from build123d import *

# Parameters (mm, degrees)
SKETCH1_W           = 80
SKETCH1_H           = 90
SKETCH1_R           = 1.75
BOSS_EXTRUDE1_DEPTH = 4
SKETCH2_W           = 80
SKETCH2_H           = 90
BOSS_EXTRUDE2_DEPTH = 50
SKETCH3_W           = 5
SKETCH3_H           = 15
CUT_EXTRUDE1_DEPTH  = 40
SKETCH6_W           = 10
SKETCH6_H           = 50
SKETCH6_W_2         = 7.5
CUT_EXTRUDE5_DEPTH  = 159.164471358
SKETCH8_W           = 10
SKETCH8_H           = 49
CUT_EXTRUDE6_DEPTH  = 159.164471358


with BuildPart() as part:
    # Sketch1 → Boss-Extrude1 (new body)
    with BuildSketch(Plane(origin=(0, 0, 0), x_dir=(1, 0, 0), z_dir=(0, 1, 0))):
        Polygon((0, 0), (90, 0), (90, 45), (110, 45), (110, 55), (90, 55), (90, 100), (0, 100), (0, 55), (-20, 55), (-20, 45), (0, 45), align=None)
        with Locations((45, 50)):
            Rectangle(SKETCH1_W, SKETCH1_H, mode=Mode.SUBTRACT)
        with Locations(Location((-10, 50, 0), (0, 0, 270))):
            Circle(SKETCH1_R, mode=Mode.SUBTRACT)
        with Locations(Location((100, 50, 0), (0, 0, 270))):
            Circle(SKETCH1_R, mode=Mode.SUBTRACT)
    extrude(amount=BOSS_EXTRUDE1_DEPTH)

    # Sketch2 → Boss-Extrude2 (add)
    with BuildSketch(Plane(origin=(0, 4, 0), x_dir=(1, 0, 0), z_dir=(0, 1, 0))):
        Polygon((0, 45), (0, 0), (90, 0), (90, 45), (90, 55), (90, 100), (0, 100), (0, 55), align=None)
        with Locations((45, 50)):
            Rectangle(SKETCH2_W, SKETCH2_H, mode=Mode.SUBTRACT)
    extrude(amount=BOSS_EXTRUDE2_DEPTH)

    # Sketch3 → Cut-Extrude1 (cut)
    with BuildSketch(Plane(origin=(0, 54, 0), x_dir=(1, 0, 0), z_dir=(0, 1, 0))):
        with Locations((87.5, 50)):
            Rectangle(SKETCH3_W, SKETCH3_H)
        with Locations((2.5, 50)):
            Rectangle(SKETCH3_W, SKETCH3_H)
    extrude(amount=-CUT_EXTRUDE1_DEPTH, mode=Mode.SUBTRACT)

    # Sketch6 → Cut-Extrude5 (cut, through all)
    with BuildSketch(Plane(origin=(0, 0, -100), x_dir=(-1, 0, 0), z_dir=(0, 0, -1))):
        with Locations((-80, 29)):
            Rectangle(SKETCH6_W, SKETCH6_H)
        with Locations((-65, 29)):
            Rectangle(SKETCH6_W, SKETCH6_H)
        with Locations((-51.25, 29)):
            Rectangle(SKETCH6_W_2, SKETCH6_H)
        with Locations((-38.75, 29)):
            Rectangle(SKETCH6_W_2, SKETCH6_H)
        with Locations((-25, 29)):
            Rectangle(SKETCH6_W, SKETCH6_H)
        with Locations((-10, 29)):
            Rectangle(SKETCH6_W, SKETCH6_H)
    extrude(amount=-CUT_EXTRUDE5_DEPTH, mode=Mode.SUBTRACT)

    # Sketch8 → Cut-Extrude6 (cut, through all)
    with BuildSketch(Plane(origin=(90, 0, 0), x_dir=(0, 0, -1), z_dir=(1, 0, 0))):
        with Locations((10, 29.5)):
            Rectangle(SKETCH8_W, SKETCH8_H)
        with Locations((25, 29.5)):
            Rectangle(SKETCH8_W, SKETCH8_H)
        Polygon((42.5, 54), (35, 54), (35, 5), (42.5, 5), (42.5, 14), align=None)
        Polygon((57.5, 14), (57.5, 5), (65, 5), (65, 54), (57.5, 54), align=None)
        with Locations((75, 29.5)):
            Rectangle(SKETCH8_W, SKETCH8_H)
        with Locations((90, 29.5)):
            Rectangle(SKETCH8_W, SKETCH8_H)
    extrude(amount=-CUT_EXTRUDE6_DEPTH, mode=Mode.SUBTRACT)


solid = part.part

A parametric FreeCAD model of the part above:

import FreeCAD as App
import Part
import Sketcher
from FreeCAD import Vector

doc = App.newDocument("Part")
body = doc.addObject("PartDesign::Body", "Body")

# Sketch on XZ plane
sketch1 = doc.addObject("Sketcher::SketchObject", "Sketch")
body.addObject(sketch1)
sketch1.AttachmentSupport = (doc.XZ_Plane, [""])
sketch1.MapMode = "FlatFace"
sketch1.addGeometry(Part.LineSegment(Vector(0, 0, 0), Vector(90, 0, 0)), False)
sketch1.addGeometry(Part.LineSegment(Vector(90, 0, 0), Vector(90, -45, 0)), False)
sketch1.addGeometry(Part.LineSegment(Vector(90, -45, 0), Vector(110, -45, 0)), False)
sketch1.addGeometry(Part.LineSegment(Vector(110, -45, 0), Vector(110, -55, 0)), False)
sketch1.addGeometry(Part.LineSegment(Vector(110, -55, 0), Vector(90, -55, 0)), False)
sketch1.addGeometry(Part.LineSegment(Vector(90, -55, 0), Vector(90, -100, 0)), False)
sketch1.addGeometry(Part.LineSegment(Vector(90, -100, 0), Vector(0, -100, 0)), False)
sketch1.addGeometry(Part.LineSegment(Vector(0, -100, 0), Vector(0, -55, 0)), False)
sketch1.addGeometry(Part.LineSegment(Vector(0, -55, 0), Vector(-20, -55, 0)), False)
sketch1.addGeometry(Part.LineSegment(Vector(-20, -55, 0), Vector(-20, -45, 0)), False)
sketch1.addGeometry(Part.LineSegment(Vector(-20, -45, 0), Vector(0, -45, 0)), False)
sketch1.addGeometry(Part.LineSegment(Vector(0, -45, 0), Vector(0, 0, 0)), False)
sketch1.addGeometry(Part.Circle(Vector(-10, -50, 0), Vector(0, 0, 1), 1.8), False)
sketch1.addGeometry(Part.LineSegment(Vector(85, -5, 0), Vector(5, -5, 0)), False)
sketch1.addGeometry(Part.LineSegment(Vector(5, -5, 0), Vector(5, -95, 0)), False)
sketch1.addGeometry(Part.LineSegment(Vector(5, -95, 0), Vector(85, -95, 0)), False)
sketch1.addGeometry(Part.LineSegment(Vector(85, -95, 0), Vector(85, -5, 0)), False)
sketch1.addGeometry(Part.Circle(Vector(100, -50, 0), Vector(0, 0, 1), 1.8), False)
sketch1.addConstraint(Sketcher.Constraint("Coincident", 0, 2, 1, 1))
sketch1.addConstraint(Sketcher.Constraint("Coincident", 1, 2, 2, 1))
sketch1.addConstraint(Sketcher.Constraint("Coincident", 2, 2, 3, 1))
sketch1.addConstraint(Sketcher.Constraint("Coincident", 3, 2, 4, 1))
sketch1.addConstraint(Sketcher.Constraint("Coincident", 4, 2, 5, 1))
sketch1.addConstraint(Sketcher.Constraint("Coincident", 5, 2, 6, 1))
sketch1.addConstraint(Sketcher.Constraint("Coincident", 6, 2, 7, 1))
sketch1.addConstraint(Sketcher.Constraint("Coincident", 7, 2, 8, 1))
sketch1.addConstraint(Sketcher.Constraint("Coincident", 8, 2, 9, 1))
sketch1.addConstraint(Sketcher.Constraint("Coincident", 9, 2, 10, 1))
sketch1.addConstraint(Sketcher.Constraint("Coincident", 10, 2, 11, 1))
sketch1.addConstraint(Sketcher.Constraint("Coincident", 11, 2, 0, 1))
sketch1.addConstraint(Sketcher.Constraint("Coincident", 13, 2, 14, 1))
sketch1.addConstraint(Sketcher.Constraint("Coincident", 14, 2, 15, 1))
sketch1.addConstraint(Sketcher.Constraint("Coincident", 15, 2, 16, 1))
sketch1.addConstraint(Sketcher.Constraint("Coincident", 16, 2, 13, 1))
sketch1.addConstraint(Sketcher.Constraint("Horizontal", 0))
sketch1.addConstraint(Sketcher.Constraint("Vertical", 1))
sketch1.addConstraint(Sketcher.Constraint("Horizontal", 2))
sketch1.addConstraint(Sketcher.Constraint("Vertical", 3))
sketch1.addConstraint(Sketcher.Constraint("Horizontal", 4))
sketch1.addConstraint(Sketcher.Constraint("Vertical", 5))
sketch1.addConstraint(Sketcher.Constraint("Horizontal", 6))
sketch1.addConstraint(Sketcher.Constraint("Vertical", 7))
sketch1.addConstraint(Sketcher.Constraint("Horizontal", 8))
sketch1.addConstraint(Sketcher.Constraint("Vertical", 9))
sketch1.addConstraint(Sketcher.Constraint("Horizontal", 10))
sketch1.addConstraint(Sketcher.Constraint("Vertical", 11))
sketch1.addConstraint(Sketcher.Constraint("Horizontal", 13))
sketch1.addConstraint(Sketcher.Constraint("Vertical", 14))
sketch1.addConstraint(Sketcher.Constraint("Horizontal", 15))
sketch1.addConstraint(Sketcher.Constraint("Vertical", 16))
sketch1.addConstraint(Sketcher.Constraint("Coincident", 11, 2, -1, 1))
sketch1.addConstraint(Sketcher.Constraint("Equal", 12, 17))
sketch1.addConstraint(Sketcher.Constraint("PointOnObject", 6, 2, -2))
sketch1.addConstraint(Sketcher.Constraint("Horizontal", 12, 3, 17, 3))
sketch1.addConstraint(Sketcher.Constraint("Horizontal", 4, 2, 7, 2))
sketch1.addConstraint(Sketcher.Constraint("Horizontal", 2, 2, 9, 2))
sketch1.addConstraint(Sketcher.Constraint("Vertical", 1, 2, 4, 2))
sketch1.addConstraint(Sketcher.Constraint("Equal", 4, 8))
sketch1.addConstraint(Sketcher.Constraint("Equal", 1, 5))
sketch1.addConstraint(Sketcher.Constraint("Equal", 6, 14))
sketch1.addConstraint(Sketcher.Constraint("Diameter", 12, 3.5))
sketch1.addConstraint(Sketcher.Constraint("DistanceX", 0, 1, 0, 2, 90.0))
sketch1.addConstraint(Sketcher.Constraint("DistanceX", 2, 1, 2, 2, 20.0))
sketch1.addConstraint(Sketcher.Constraint("DistanceX", 13, 2, 13, 1, 80.0))
sketch1.addConstraint(Sketcher.Constraint("DistanceY", 1, 2, 1, 1, 45.0))
sketch1.addConstraint(Sketcher.Constraint("DistanceY", 3, 2, 3, 1, 10.0))
sketch1.addConstraint(Sketcher.Constraint("DistanceX", 12, 3, -1, 1, 10.0))
sketch1.addConstraint(Sketcher.Constraint("DistanceY", 12, 3, -1, 1, 50.0))
sketch1.addConstraint(Sketcher.Constraint("DistanceX", -1, 1, 17, 3, 100.0))
sketch1.addConstraint(Sketcher.Constraint("DistanceX", -1, 1, 13, 2, 5.0))
sketch1.addConstraint(Sketcher.Constraint("DistanceY", 13, 2, -1, 1, 5.0))
pad1 = doc.addObject("PartDesign::Pad", "Pad")
body.addObject(pad1)
pad1.Profile = sketch1
pad1.Length = 4
pad1.Reversed = True

# Sketch on XZ plane
sketch2 = doc.addObject("Sketcher::SketchObject", "Sketch001")
body.addObject(sketch2)
sketch2.AttachmentSupport = (doc.XZ_Plane, [""])
sketch2.MapMode = "FlatFace"
sketch2.AttachmentOffset = App.Placement(Vector(0, 0, -4), App.Rotation())
sketch2.addGeometry(Part.LineSegment(Vector(0, 0, 0), Vector(90, 0, 0)), False)
sketch2.addGeometry(Part.LineSegment(Vector(90, 0, 0), Vector(90, -100, 0)), False)
sketch2.addGeometry(Part.LineSegment(Vector(90, -100, 0), Vector(0, -100, 0)), False)
sketch2.addGeometry(Part.LineSegment(Vector(0, -100, 0), Vector(0, 0, 0)), False)
sketch2.addGeometry(Part.LineSegment(Vector(85, -5, 0), Vector(5, -5, 0)), False)
sketch2.addGeometry(Part.LineSegment(Vector(5, -5, 0), Vector(5, -95, 0)), False)
sketch2.addGeometry(Part.LineSegment(Vector(5, -95, 0), Vector(85, -95, 0)), False)
sketch2.addGeometry(Part.LineSegment(Vector(85, -95, 0), Vector(85, -5, 0)), False)
sketch2.addConstraint(Sketcher.Constraint("Coincident", 0, 2, 1, 1))
sketch2.addConstraint(Sketcher.Constraint("Coincident", 1, 2, 2, 1))
sketch2.addConstraint(Sketcher.Constraint("Coincident", 2, 2, 3, 1))
sketch2.addConstraint(Sketcher.Constraint("Coincident", 3, 2, 0, 1))
sketch2.addConstraint(Sketcher.Constraint("Coincident", 4, 2, 5, 1))
sketch2.addConstraint(Sketcher.Constraint("Coincident", 5, 2, 6, 1))
sketch2.addConstraint(Sketcher.Constraint("Coincident", 6, 2, 7, 1))
sketch2.addConstraint(Sketcher.Constraint("Coincident", 7, 2, 4, 1))
sketch2.addConstraint(Sketcher.Constraint("Horizontal", 0))
sketch2.addConstraint(Sketcher.Constraint("Vertical", 1))
sketch2.addConstraint(Sketcher.Constraint("Horizontal", 2))
sketch2.addConstraint(Sketcher.Constraint("Vertical", 3))
sketch2.addConstraint(Sketcher.Constraint("Horizontal", 4))
sketch2.addConstraint(Sketcher.Constraint("Vertical", 5))
sketch2.addConstraint(Sketcher.Constraint("Horizontal", 6))
sketch2.addConstraint(Sketcher.Constraint("Vertical", 7))
sketch2.addConstraint(Sketcher.Constraint("Coincident", 3, 2, -1, 1))
sketch2.addConstraint(Sketcher.Constraint("Equal", 2, 5))
sketch2.addConstraint(Sketcher.Constraint("DistanceX", 0, 1, 0, 2, 90.0))
sketch2.addConstraint(Sketcher.Constraint("DistanceX", 4, 2, 4, 1, 80.0))
sketch2.addConstraint(Sketcher.Constraint("DistanceY", 1, 2, 1, 1, 100.0))
sketch2.addConstraint(Sketcher.Constraint("DistanceX", -1, 1, 4, 2, 5.0))
sketch2.addConstraint(Sketcher.Constraint("DistanceY", 4, 2, -1, 1, 5.0))
pad2 = doc.addObject("PartDesign::Pad", "Pad001")
body.addObject(pad2)
pad2.Profile = sketch2
pad2.Length = 50
pad2.Reversed = True

# Sketch on XZ plane
sketch3 = doc.addObject("Sketcher::SketchObject", "Sketch002")
body.addObject(sketch3)
sketch3.AttachmentSupport = (doc.XZ_Plane, [""])
sketch3.MapMode = "FlatFace"
sketch3.AttachmentOffset = App.Placement(Vector(0, 0, -54), App.Rotation())
sketch3.addGeometry(Part.LineSegment(Vector(85, -58, 0), Vector(85, -42, 0)), False)
sketch3.addGeometry(Part.LineSegment(Vector(85, -42, 0), Vector(90, -42, 0)), False)
sketch3.addGeometry(Part.LineSegment(Vector(90, -42, 0), Vector(90, -58, 0)), False)
sketch3.addGeometry(Part.LineSegment(Vector(90, -58, 0), Vector(85, -58, 0)), False)
sketch3.addGeometry(Part.LineSegment(Vector(0, -58, 0), Vector(0, -42, 0)), False)
sketch3.addGeometry(Part.LineSegment(Vector(0, -42, 0), Vector(5, -42, 0)), False)
sketch3.addGeometry(Part.LineSegment(Vector(5, -42, 0), Vector(5, -58, 0)), False)
sketch3.addGeometry(Part.LineSegment(Vector(5, -58, 0), Vector(0, -58, 0)), False)
sketch3.addConstraint(Sketcher.Constraint("Coincident", 0, 2, 1, 1))
sketch3.addConstraint(Sketcher.Constraint("Coincident", 1, 2, 2, 1))
sketch3.addConstraint(Sketcher.Constraint("Coincident", 2, 2, 3, 1))
sketch3.addConstraint(Sketcher.Constraint("Coincident", 3, 2, 0, 1))
sketch3.addConstraint(Sketcher.Constraint("Coincident", 4, 2, 5, 1))
sketch3.addConstraint(Sketcher.Constraint("Coincident", 5, 2, 6, 1))
sketch3.addConstraint(Sketcher.Constraint("Coincident", 6, 2, 7, 1))
sketch3.addConstraint(Sketcher.Constraint("Coincident", 7, 2, 4, 1))
sketch3.addConstraint(Sketcher.Constraint("Vertical", 0))
sketch3.addConstraint(Sketcher.Constraint("Horizontal", 1))
sketch3.addConstraint(Sketcher.Constraint("Vertical", 2))
sketch3.addConstraint(Sketcher.Constraint("Horizontal", 3))
sketch3.addConstraint(Sketcher.Constraint("Vertical", 4))
sketch3.addConstraint(Sketcher.Constraint("Horizontal", 5))
sketch3.addConstraint(Sketcher.Constraint("Vertical", 6))
sketch3.addConstraint(Sketcher.Constraint("Horizontal", 7))
sketch3.addConstraint(Sketcher.Constraint("PointOnObject", 4, 2, -2))
sketch3.addConstraint(Sketcher.Constraint("Horizontal", 1, 2, 4, 2))
sketch3.addConstraint(Sketcher.Constraint("Horizontal", 3, 2, 6, 2))
sketch3.addConstraint(Sketcher.Constraint("Equal", 3, 5))
sketch3.addConstraint(Sketcher.Constraint("DistanceX", 1, 1, 1, 2, 5.0))
sketch3.addConstraint(Sketcher.Constraint("DistanceY", 0, 1, 0, 2, 15.0))
sketch3.addConstraint(Sketcher.Constraint("DistanceX", -1, 1, 0, 2, 85.0))
sketch3.addConstraint(Sketcher.Constraint("DistanceY", 0, 2, -1, 1, 42.5))
pocket1 = doc.addObject("PartDesign::Pocket", "Pocket")
body.addObject(pocket1)
pocket1.Profile = sketch3
pocket1.Length = 40
pocket1.Reversed = True

# Sketch on XY plane
sketch4 = doc.addObject("Sketcher::SketchObject", "Sketch003")
body.addObject(sketch4)
sketch4.AttachmentSupport = (doc.XY_Plane, [""])
sketch4.MapMode = "FlatFace"
sketch4.AttachmentOffset = App.Placement(Vector(0, 0, -100), App.Rotation())
sketch4.addGeometry(Part.LineSegment(Vector(85, 54, 0), Vector(85, 4, 0)), False)
sketch4.addGeometry(Part.LineSegment(Vector(85, 4, 0), Vector(75, 4, 0)), False)
sketch4.addGeometry(Part.LineSegment(Vector(75, 4, 0), Vector(75, 54, 0)), False)
sketch4.addGeometry(Part.LineSegment(Vector(75, 54, 0), Vector(85, 54, 0)), False)
sketch4.addGeometry(Part.LineSegment(Vector(70, 54, 0), Vector(70, 4, 0)), False)
sketch4.addGeometry(Part.LineSegment(Vector(70, 4, 0), Vector(60, 4, 0)), False)
sketch4.addGeometry(Part.LineSegment(Vector(60, 4, 0), Vector(60, 54, 0)), False)
sketch4.addGeometry(Part.LineSegment(Vector(60, 54, 0), Vector(70, 54, 0)), False)
sketch4.addGeometry(Part.LineSegment(Vector(55, 54, 0), Vector(55, 4, 0)), False)
sketch4.addGeometry(Part.LineSegment(Vector(55, 4, 0), Vector(48, 4, 0)), False)
sketch4.addGeometry(Part.LineSegment(Vector(48, 4, 0), Vector(48, 54, 0)), False)
sketch4.addGeometry(Part.LineSegment(Vector(48, 54, 0), Vector(55, 54, 0)), False)
sketch4.addGeometry(Part.LineSegment(Vector(42, 54, 0), Vector(42, 4, 0)), False)
sketch4.addGeometry(Part.LineSegment(Vector(42, 4, 0), Vector(35, 4, 0)), False)
sketch4.addGeometry(Part.LineSegment(Vector(35, 4, 0), Vector(35, 54, 0)), False)
sketch4.addGeometry(Part.LineSegment(Vector(35, 54, 0), Vector(42, 54, 0)), False)
sketch4.addGeometry(Part.LineSegment(Vector(30, 54, 0), Vector(30, 4, 0)), False)
sketch4.addGeometry(Part.LineSegment(Vector(30, 4, 0), Vector(20, 4, 0)), False)
sketch4.addGeometry(Part.LineSegment(Vector(20, 4, 0), Vector(20, 54, 0)), False)
sketch4.addGeometry(Part.LineSegment(Vector(20, 54, 0), Vector(30, 54, 0)), False)
sketch4.addGeometry(Part.LineSegment(Vector(15, 54, 0), Vector(15, 4, 0)), False)
sketch4.addGeometry(Part.LineSegment(Vector(15, 4, 0), Vector(5, 4, 0)), False)
sketch4.addGeometry(Part.LineSegment(Vector(5, 4, 0), Vector(5, 54, 0)), False)
sketch4.addGeometry(Part.LineSegment(Vector(5, 54, 0), Vector(15, 54, 0)), False)
sketch4.addConstraint(Sketcher.Constraint("Coincident", 0, 2, 1, 1))
sketch4.addConstraint(Sketcher.Constraint("Coincident", 1, 2, 2, 1))
sketch4.addConstraint(Sketcher.Constraint("Coincident", 2, 2, 3, 1))
sketch4.addConstraint(Sketcher.Constraint("Coincident", 3, 2, 0, 1))
sketch4.addConstraint(Sketcher.Constraint("Coincident", 4, 2, 5, 1))
sketch4.addConstraint(Sketcher.Constraint("Coincident", 5, 2, 6, 1))
sketch4.addConstraint(Sketcher.Constraint("Coincident", 6, 2, 7, 1))
sketch4.addConstraint(Sketcher.Constraint("Coincident", 7, 2, 4, 1))
sketch4.addConstraint(Sketcher.Constraint("Coincident", 8, 2, 9, 1))
sketch4.addConstraint(Sketcher.Constraint("Coincident", 9, 2, 10, 1))
sketch4.addConstraint(Sketcher.Constraint("Coincident", 10, 2, 11, 1))
sketch4.addConstraint(Sketcher.Constraint("Coincident", 11, 2, 8, 1))
sketch4.addConstraint(Sketcher.Constraint("Coincident", 12, 2, 13, 1))
sketch4.addConstraint(Sketcher.Constraint("Coincident", 13, 2, 14, 1))
sketch4.addConstraint(Sketcher.Constraint("Coincident", 14, 2, 15, 1))
sketch4.addConstraint(Sketcher.Constraint("Coincident", 15, 2, 12, 1))
sketch4.addConstraint(Sketcher.Constraint("Coincident", 16, 2, 17, 1))
sketch4.addConstraint(Sketcher.Constraint("Coincident", 17, 2, 18, 1))
sketch4.addConstraint(Sketcher.Constraint("Coincident", 18, 2, 19, 1))
sketch4.addConstraint(Sketcher.Constraint("Coincident", 19, 2, 16, 1))
sketch4.addConstraint(Sketcher.Constraint("Coincident", 20, 2, 21, 1))
sketch4.addConstraint(Sketcher.Constraint("Coincident", 21, 2, 22, 1))
sketch4.addConstraint(Sketcher.Constraint("Coincident", 22, 2, 23, 1))
sketch4.addConstraint(Sketcher.Constraint("Coincident", 23, 2, 20, 1))
sketch4.addConstraint(Sketcher.Constraint("Vertical", 0))
sketch4.addConstraint(Sketcher.Constraint("Horizontal", 1))
sketch4.addConstraint(Sketcher.Constraint("Vertical", 2))
sketch4.addConstraint(Sketcher.Constraint("Horizontal", 3))
sketch4.addConstraint(Sketcher.Constraint("Vertical", 4))
sketch4.addConstraint(Sketcher.Constraint("Horizontal", 5))
sketch4.addConstraint(Sketcher.Constraint("Vertical", 6))
sketch4.addConstraint(Sketcher.Constraint("Horizontal", 7))
sketch4.addConstraint(Sketcher.Constraint("Vertical", 8))
sketch4.addConstraint(Sketcher.Constraint("Horizontal", 9))
sketch4.addConstraint(Sketcher.Constraint("Vertical", 10))
sketch4.addConstraint(Sketcher.Constraint("Horizontal", 11))
sketch4.addConstraint(Sketcher.Constraint("Vertical", 12))
sketch4.addConstraint(Sketcher.Constraint("Horizontal", 13))
sketch4.addConstraint(Sketcher.Constraint("Vertical", 14))
sketch4.addConstraint(Sketcher.Constraint("Horizontal", 15))
sketch4.addConstraint(Sketcher.Constraint("Vertical", 16))
sketch4.addConstraint(Sketcher.Constraint("Horizontal", 17))
sketch4.addConstraint(Sketcher.Constraint("Vertical", 18))
sketch4.addConstraint(Sketcher.Constraint("Horizontal", 19))
sketch4.addConstraint(Sketcher.Constraint("Vertical", 20))
sketch4.addConstraint(Sketcher.Constraint("Horizontal", 21))
sketch4.addConstraint(Sketcher.Constraint("Vertical", 22))
sketch4.addConstraint(Sketcher.Constraint("Horizontal", 23))
sketch4.addConstraint(Sketcher.Constraint("Horizontal", 1, 2, 4, 2))
sketch4.addConstraint(Sketcher.Constraint("Horizontal", 3, 2, 6, 2))
sketch4.addConstraint(Sketcher.Constraint("Horizontal", 5, 2, 8, 2))
sketch4.addConstraint(Sketcher.Constraint("Horizontal", 7, 2, 10, 2))
sketch4.addConstraint(Sketcher.Constraint("Horizontal", 9, 2, 12, 2))
sketch4.addConstraint(Sketcher.Constraint("Horizontal", 11, 2, 14, 2))
sketch4.addConstraint(Sketcher.Constraint("Horizontal", 13, 2, 16, 2))
sketch4.addConstraint(Sketcher.Constraint("Horizontal", 15, 2, 18, 2))
sketch4.addConstraint(Sketcher.Constraint("Horizontal", 17, 2, 20, 2))
sketch4.addConstraint(Sketcher.Constraint("Horizontal", 19, 2, 22, 2))
sketch4.addConstraint(Sketcher.Constraint("Equal", 3, 5))
sketch4.addConstraint(Sketcher.Constraint("Equal", 11, 13))
sketch4.addConstraint(Sketcher.Constraint("Equal", 7, 17))
sketch4.addConstraint(Sketcher.Constraint("Equal", 19, 21))
sketch4.addConstraint(Sketcher.Constraint("DistanceX", 1, 2, 1, 1, 10.0))
sketch4.addConstraint(Sketcher.Constraint("DistanceY", 0, 2, 0, 1, 50.0))
sketch4.addConstraint(Sketcher.Constraint("DistanceX", 9, 2, 9, 1, 7.5))
sketch4.addConstraint(Sketcher.Constraint("DistanceX", -1, 1, 0, 2, 85.0))
sketch4.addConstraint(Sketcher.Constraint("DistanceY", -1, 1, 0, 2, 4.0))
sketch4.addConstraint(Sketcher.Constraint("DistanceX", -1, 1, 4, 2, 70.0))
sketch4.addConstraint(Sketcher.Constraint("DistanceX", -1, 1, 8, 2, 55.0))
sketch4.addConstraint(Sketcher.Constraint("DistanceX", -1, 1, 13, 2, 35.0))
sketch4.addConstraint(Sketcher.Constraint("DistanceX", -1, 1, 16, 2, 30.0))
sketch4.addConstraint(Sketcher.Constraint("DistanceX", -1, 1, 20, 2, 15.0))
pocket2 = doc.addObject("PartDesign::Pocket", "Pocket001")
body.addObject(pocket2)
pocket2.Profile = sketch4
pocket2.Type = "ThroughAll"
pocket2.Reversed = True

# Sketch on YZ plane
sketch5 = doc.addObject("Sketcher::SketchObject", "Sketch004")
body.addObject(sketch5)
sketch5.AttachmentSupport = (doc.YZ_Plane, [""])
sketch5.MapMode = "FlatFace"
sketch5.AttachmentOffset = App.Placement(Vector(0, 0, 90), App.Rotation())
sketch5.addGeometry(Part.LineSegment(Vector(54, -5, 0), Vector(5, -5, 0)), False)
sketch5.addGeometry(Part.LineSegment(Vector(5, -5, 0), Vector(5, -15, 0)), False)
sketch5.addGeometry(Part.LineSegment(Vector(5, -15, 0), Vector(54, -15, 0)), False)
sketch5.addGeometry(Part.LineSegment(Vector(54, -15, 0), Vector(54, -5, 0)), False)
sketch5.addGeometry(Part.LineSegment(Vector(54, -20, 0), Vector(5, -20, 0)), False)
sketch5.addGeometry(Part.LineSegment(Vector(5, -20, 0), Vector(5, -30, 0)), False)
sketch5.addGeometry(Part.LineSegment(Vector(5, -30, 0), Vector(54, -30, 0)), False)
sketch5.addGeometry(Part.LineSegment(Vector(54, -30, 0), Vector(54, -20, 0)), False)
sketch5.addGeometry(Part.LineSegment(Vector(54, -42, 0), Vector(54, -35, 0)), False)
sketch5.addGeometry(Part.LineSegment(Vector(54, -35, 0), Vector(5, -35, 0)), False)
sketch5.addGeometry(Part.LineSegment(Vector(5, -35, 0), Vector(5, -42, 0)), False)
sketch5.addGeometry(Part.LineSegment(Vector(5, -42, 0), Vector(54, -42, 0)), False)
sketch5.addGeometry(Part.LineSegment(Vector(5, -58, 0), Vector(5, -65, 0)), False)
sketch5.addGeometry(Part.LineSegment(Vector(5, -65, 0), Vector(54, -65, 0)), False)
sketch5.addGeometry(Part.LineSegment(Vector(54, -65, 0), Vector(54, -58, 0)), False)
sketch5.addGeometry(Part.LineSegment(Vector(54, -58, 0), Vector(5, -58, 0)), False)
sketch5.addGeometry(Part.LineSegment(Vector(54, -70, 0), Vector(5, -70, 0)), False)
sketch5.addGeometry(Part.LineSegment(Vector(5, -70, 0), Vector(5, -80, 0)), False)
sketch5.addGeometry(Part.LineSegment(Vector(5, -80, 0), Vector(54, -80, 0)), False)
sketch5.addGeometry(Part.LineSegment(Vector(54, -80, 0), Vector(54, -70, 0)), False)
sketch5.addGeometry(Part.LineSegment(Vector(54, -85, 0), Vector(5, -85, 0)), False)
sketch5.addGeometry(Part.LineSegment(Vector(5, -85, 0), Vector(5, -95, 0)), False)
sketch5.addGeometry(Part.LineSegment(Vector(5, -95, 0), Vector(54, -95, 0)), False)
sketch5.addGeometry(Part.LineSegment(Vector(54, -95, 0), Vector(54, -85, 0)), False)
sketch5.addConstraint(Sketcher.Constraint("Coincident", 0, 2, 1, 1))
sketch5.addConstraint(Sketcher.Constraint("Coincident", 1, 2, 2, 1))
sketch5.addConstraint(Sketcher.Constraint("Coincident", 2, 2, 3, 1))
sketch5.addConstraint(Sketcher.Constraint("Coincident", 3, 2, 0, 1))
sketch5.addConstraint(Sketcher.Constraint("Coincident", 4, 2, 5, 1))
sketch5.addConstraint(Sketcher.Constraint("Coincident", 5, 2, 6, 1))
sketch5.addConstraint(Sketcher.Constraint("Coincident", 6, 2, 7, 1))
sketch5.addConstraint(Sketcher.Constraint("Coincident", 7, 2, 4, 1))
sketch5.addConstraint(Sketcher.Constraint("Coincident", 8, 2, 9, 1))
sketch5.addConstraint(Sketcher.Constraint("Coincident", 9, 2, 10, 1))
sketch5.addConstraint(Sketcher.Constraint("Coincident", 10, 2, 11, 1))
sketch5.addConstraint(Sketcher.Constraint("Coincident", 11, 2, 8, 1))
sketch5.addConstraint(Sketcher.Constraint("Coincident", 12, 2, 13, 1))
sketch5.addConstraint(Sketcher.Constraint("Coincident", 13, 2, 14, 1))
sketch5.addConstraint(Sketcher.Constraint("Coincident", 14, 2, 15, 1))
sketch5.addConstraint(Sketcher.Constraint("Coincident", 15, 2, 12, 1))
sketch5.addConstraint(Sketcher.Constraint("Coincident", 16, 2, 17, 1))
sketch5.addConstraint(Sketcher.Constraint("Coincident", 17, 2, 18, 1))
sketch5.addConstraint(Sketcher.Constraint("Coincident", 18, 2, 19, 1))
sketch5.addConstraint(Sketcher.Constraint("Coincident", 19, 2, 16, 1))
sketch5.addConstraint(Sketcher.Constraint("Coincident", 20, 2, 21, 1))
sketch5.addConstraint(Sketcher.Constraint("Coincident", 21, 2, 22, 1))
sketch5.addConstraint(Sketcher.Constraint("Coincident", 22, 2, 23, 1))
sketch5.addConstraint(Sketcher.Constraint("Coincident", 23, 2, 20, 1))
sketch5.addConstraint(Sketcher.Constraint("Horizontal", 0))
sketch5.addConstraint(Sketcher.Constraint("Vertical", 1))
sketch5.addConstraint(Sketcher.Constraint("Horizontal", 2))
sketch5.addConstraint(Sketcher.Constraint("Vertical", 3))
sketch5.addConstraint(Sketcher.Constraint("Horizontal", 4))
sketch5.addConstraint(Sketcher.Constraint("Vertical", 5))
sketch5.addConstraint(Sketcher.Constraint("Horizontal", 6))
sketch5.addConstraint(Sketcher.Constraint("Vertical", 7))
sketch5.addConstraint(Sketcher.Constraint("Vertical", 8))
sketch5.addConstraint(Sketcher.Constraint("Horizontal", 9))
sketch5.addConstraint(Sketcher.Constraint("Vertical", 10))
sketch5.addConstraint(Sketcher.Constraint("Horizontal", 11))
sketch5.addConstraint(Sketcher.Constraint("Vertical", 12))
sketch5.addConstraint(Sketcher.Constraint("Horizontal", 13))
sketch5.addConstraint(Sketcher.Constraint("Vertical", 14))
sketch5.addConstraint(Sketcher.Constraint("Horizontal", 15))
sketch5.addConstraint(Sketcher.Constraint("Horizontal", 16))
sketch5.addConstraint(Sketcher.Constraint("Vertical", 17))
sketch5.addConstraint(Sketcher.Constraint("Horizontal", 18))
sketch5.addConstraint(Sketcher.Constraint("Vertical", 19))
sketch5.addConstraint(Sketcher.Constraint("Horizontal", 20))
sketch5.addConstraint(Sketcher.Constraint("Vertical", 21))
sketch5.addConstraint(Sketcher.Constraint("Horizontal", 22))
sketch5.addConstraint(Sketcher.Constraint("Vertical", 23))
sketch5.addConstraint(Sketcher.Constraint("Vertical", 1, 2, 4, 2))
sketch5.addConstraint(Sketcher.Constraint("Vertical", 3, 2, 6, 2))
sketch5.addConstraint(Sketcher.Constraint("Vertical", 7, 2, 8, 2))
sketch5.addConstraint(Sketcher.Constraint("Vertical", 5, 2, 9, 2))
sketch5.addConstraint(Sketcher.Constraint("Vertical", 10, 2, 12, 2))
sketch5.addConstraint(Sketcher.Constraint("Vertical", 11, 2, 13, 2))
sketch5.addConstraint(Sketcher.Constraint("Vertical", 15, 2, 16, 2))
sketch5.addConstraint(Sketcher.Constraint("Vertical", 14, 2, 18, 2))
sketch5.addConstraint(Sketcher.Constraint("Vertical", 17, 2, 20, 2))
sketch5.addConstraint(Sketcher.Constraint("Vertical", 19, 2, 22, 2))
sketch5.addConstraint(Sketcher.Constraint("Equal", 3, 5))
sketch5.addConstraint(Sketcher.Constraint("Equal", 10, 12))
sketch5.addConstraint(Sketcher.Constraint("Equal", 7, 17))
sketch5.addConstraint(Sketcher.Constraint("Equal", 19, 21))
sketch5.addConstraint(Sketcher.Constraint("DistanceX", 0, 2, 0, 1, 49.0))
sketch5.addConstraint(Sketcher.Constraint("DistanceY", 1, 2, 1, 1, 10.0))
sketch5.addConstraint(Sketcher.Constraint("DistanceY", 8, 1, 8, 2, 7.5))
sketch5.addConstraint(Sketcher.Constraint("DistanceX", -1, 1, 0, 2, 5.0))
sketch5.addConstraint(Sketcher.Constraint("DistanceY", 0, 2, -1, 1, 5.0))
sketch5.addConstraint(Sketcher.Constraint("DistanceY", 4, 2, -1, 1, 20.0))
sketch5.addConstraint(Sketcher.Constraint("DistanceY", 8, 2, -1, 1, 35.0))
sketch5.addConstraint(Sketcher.Constraint("DistanceY", 12, 2, -1, 1, 65.0))
sketch5.addConstraint(Sketcher.Constraint("DistanceY", 16, 2, -1, 1, 70.0))
sketch5.addConstraint(Sketcher.Constraint("DistanceY", 20, 2, -1, 1, 85.0))
pocket3 = doc.addObject("PartDesign::Pocket", "Pocket002")
body.addObject(pocket3)
pocket3.Profile = sketch5
pocket3.Type = "ThroughAll"

doc.recompute()
